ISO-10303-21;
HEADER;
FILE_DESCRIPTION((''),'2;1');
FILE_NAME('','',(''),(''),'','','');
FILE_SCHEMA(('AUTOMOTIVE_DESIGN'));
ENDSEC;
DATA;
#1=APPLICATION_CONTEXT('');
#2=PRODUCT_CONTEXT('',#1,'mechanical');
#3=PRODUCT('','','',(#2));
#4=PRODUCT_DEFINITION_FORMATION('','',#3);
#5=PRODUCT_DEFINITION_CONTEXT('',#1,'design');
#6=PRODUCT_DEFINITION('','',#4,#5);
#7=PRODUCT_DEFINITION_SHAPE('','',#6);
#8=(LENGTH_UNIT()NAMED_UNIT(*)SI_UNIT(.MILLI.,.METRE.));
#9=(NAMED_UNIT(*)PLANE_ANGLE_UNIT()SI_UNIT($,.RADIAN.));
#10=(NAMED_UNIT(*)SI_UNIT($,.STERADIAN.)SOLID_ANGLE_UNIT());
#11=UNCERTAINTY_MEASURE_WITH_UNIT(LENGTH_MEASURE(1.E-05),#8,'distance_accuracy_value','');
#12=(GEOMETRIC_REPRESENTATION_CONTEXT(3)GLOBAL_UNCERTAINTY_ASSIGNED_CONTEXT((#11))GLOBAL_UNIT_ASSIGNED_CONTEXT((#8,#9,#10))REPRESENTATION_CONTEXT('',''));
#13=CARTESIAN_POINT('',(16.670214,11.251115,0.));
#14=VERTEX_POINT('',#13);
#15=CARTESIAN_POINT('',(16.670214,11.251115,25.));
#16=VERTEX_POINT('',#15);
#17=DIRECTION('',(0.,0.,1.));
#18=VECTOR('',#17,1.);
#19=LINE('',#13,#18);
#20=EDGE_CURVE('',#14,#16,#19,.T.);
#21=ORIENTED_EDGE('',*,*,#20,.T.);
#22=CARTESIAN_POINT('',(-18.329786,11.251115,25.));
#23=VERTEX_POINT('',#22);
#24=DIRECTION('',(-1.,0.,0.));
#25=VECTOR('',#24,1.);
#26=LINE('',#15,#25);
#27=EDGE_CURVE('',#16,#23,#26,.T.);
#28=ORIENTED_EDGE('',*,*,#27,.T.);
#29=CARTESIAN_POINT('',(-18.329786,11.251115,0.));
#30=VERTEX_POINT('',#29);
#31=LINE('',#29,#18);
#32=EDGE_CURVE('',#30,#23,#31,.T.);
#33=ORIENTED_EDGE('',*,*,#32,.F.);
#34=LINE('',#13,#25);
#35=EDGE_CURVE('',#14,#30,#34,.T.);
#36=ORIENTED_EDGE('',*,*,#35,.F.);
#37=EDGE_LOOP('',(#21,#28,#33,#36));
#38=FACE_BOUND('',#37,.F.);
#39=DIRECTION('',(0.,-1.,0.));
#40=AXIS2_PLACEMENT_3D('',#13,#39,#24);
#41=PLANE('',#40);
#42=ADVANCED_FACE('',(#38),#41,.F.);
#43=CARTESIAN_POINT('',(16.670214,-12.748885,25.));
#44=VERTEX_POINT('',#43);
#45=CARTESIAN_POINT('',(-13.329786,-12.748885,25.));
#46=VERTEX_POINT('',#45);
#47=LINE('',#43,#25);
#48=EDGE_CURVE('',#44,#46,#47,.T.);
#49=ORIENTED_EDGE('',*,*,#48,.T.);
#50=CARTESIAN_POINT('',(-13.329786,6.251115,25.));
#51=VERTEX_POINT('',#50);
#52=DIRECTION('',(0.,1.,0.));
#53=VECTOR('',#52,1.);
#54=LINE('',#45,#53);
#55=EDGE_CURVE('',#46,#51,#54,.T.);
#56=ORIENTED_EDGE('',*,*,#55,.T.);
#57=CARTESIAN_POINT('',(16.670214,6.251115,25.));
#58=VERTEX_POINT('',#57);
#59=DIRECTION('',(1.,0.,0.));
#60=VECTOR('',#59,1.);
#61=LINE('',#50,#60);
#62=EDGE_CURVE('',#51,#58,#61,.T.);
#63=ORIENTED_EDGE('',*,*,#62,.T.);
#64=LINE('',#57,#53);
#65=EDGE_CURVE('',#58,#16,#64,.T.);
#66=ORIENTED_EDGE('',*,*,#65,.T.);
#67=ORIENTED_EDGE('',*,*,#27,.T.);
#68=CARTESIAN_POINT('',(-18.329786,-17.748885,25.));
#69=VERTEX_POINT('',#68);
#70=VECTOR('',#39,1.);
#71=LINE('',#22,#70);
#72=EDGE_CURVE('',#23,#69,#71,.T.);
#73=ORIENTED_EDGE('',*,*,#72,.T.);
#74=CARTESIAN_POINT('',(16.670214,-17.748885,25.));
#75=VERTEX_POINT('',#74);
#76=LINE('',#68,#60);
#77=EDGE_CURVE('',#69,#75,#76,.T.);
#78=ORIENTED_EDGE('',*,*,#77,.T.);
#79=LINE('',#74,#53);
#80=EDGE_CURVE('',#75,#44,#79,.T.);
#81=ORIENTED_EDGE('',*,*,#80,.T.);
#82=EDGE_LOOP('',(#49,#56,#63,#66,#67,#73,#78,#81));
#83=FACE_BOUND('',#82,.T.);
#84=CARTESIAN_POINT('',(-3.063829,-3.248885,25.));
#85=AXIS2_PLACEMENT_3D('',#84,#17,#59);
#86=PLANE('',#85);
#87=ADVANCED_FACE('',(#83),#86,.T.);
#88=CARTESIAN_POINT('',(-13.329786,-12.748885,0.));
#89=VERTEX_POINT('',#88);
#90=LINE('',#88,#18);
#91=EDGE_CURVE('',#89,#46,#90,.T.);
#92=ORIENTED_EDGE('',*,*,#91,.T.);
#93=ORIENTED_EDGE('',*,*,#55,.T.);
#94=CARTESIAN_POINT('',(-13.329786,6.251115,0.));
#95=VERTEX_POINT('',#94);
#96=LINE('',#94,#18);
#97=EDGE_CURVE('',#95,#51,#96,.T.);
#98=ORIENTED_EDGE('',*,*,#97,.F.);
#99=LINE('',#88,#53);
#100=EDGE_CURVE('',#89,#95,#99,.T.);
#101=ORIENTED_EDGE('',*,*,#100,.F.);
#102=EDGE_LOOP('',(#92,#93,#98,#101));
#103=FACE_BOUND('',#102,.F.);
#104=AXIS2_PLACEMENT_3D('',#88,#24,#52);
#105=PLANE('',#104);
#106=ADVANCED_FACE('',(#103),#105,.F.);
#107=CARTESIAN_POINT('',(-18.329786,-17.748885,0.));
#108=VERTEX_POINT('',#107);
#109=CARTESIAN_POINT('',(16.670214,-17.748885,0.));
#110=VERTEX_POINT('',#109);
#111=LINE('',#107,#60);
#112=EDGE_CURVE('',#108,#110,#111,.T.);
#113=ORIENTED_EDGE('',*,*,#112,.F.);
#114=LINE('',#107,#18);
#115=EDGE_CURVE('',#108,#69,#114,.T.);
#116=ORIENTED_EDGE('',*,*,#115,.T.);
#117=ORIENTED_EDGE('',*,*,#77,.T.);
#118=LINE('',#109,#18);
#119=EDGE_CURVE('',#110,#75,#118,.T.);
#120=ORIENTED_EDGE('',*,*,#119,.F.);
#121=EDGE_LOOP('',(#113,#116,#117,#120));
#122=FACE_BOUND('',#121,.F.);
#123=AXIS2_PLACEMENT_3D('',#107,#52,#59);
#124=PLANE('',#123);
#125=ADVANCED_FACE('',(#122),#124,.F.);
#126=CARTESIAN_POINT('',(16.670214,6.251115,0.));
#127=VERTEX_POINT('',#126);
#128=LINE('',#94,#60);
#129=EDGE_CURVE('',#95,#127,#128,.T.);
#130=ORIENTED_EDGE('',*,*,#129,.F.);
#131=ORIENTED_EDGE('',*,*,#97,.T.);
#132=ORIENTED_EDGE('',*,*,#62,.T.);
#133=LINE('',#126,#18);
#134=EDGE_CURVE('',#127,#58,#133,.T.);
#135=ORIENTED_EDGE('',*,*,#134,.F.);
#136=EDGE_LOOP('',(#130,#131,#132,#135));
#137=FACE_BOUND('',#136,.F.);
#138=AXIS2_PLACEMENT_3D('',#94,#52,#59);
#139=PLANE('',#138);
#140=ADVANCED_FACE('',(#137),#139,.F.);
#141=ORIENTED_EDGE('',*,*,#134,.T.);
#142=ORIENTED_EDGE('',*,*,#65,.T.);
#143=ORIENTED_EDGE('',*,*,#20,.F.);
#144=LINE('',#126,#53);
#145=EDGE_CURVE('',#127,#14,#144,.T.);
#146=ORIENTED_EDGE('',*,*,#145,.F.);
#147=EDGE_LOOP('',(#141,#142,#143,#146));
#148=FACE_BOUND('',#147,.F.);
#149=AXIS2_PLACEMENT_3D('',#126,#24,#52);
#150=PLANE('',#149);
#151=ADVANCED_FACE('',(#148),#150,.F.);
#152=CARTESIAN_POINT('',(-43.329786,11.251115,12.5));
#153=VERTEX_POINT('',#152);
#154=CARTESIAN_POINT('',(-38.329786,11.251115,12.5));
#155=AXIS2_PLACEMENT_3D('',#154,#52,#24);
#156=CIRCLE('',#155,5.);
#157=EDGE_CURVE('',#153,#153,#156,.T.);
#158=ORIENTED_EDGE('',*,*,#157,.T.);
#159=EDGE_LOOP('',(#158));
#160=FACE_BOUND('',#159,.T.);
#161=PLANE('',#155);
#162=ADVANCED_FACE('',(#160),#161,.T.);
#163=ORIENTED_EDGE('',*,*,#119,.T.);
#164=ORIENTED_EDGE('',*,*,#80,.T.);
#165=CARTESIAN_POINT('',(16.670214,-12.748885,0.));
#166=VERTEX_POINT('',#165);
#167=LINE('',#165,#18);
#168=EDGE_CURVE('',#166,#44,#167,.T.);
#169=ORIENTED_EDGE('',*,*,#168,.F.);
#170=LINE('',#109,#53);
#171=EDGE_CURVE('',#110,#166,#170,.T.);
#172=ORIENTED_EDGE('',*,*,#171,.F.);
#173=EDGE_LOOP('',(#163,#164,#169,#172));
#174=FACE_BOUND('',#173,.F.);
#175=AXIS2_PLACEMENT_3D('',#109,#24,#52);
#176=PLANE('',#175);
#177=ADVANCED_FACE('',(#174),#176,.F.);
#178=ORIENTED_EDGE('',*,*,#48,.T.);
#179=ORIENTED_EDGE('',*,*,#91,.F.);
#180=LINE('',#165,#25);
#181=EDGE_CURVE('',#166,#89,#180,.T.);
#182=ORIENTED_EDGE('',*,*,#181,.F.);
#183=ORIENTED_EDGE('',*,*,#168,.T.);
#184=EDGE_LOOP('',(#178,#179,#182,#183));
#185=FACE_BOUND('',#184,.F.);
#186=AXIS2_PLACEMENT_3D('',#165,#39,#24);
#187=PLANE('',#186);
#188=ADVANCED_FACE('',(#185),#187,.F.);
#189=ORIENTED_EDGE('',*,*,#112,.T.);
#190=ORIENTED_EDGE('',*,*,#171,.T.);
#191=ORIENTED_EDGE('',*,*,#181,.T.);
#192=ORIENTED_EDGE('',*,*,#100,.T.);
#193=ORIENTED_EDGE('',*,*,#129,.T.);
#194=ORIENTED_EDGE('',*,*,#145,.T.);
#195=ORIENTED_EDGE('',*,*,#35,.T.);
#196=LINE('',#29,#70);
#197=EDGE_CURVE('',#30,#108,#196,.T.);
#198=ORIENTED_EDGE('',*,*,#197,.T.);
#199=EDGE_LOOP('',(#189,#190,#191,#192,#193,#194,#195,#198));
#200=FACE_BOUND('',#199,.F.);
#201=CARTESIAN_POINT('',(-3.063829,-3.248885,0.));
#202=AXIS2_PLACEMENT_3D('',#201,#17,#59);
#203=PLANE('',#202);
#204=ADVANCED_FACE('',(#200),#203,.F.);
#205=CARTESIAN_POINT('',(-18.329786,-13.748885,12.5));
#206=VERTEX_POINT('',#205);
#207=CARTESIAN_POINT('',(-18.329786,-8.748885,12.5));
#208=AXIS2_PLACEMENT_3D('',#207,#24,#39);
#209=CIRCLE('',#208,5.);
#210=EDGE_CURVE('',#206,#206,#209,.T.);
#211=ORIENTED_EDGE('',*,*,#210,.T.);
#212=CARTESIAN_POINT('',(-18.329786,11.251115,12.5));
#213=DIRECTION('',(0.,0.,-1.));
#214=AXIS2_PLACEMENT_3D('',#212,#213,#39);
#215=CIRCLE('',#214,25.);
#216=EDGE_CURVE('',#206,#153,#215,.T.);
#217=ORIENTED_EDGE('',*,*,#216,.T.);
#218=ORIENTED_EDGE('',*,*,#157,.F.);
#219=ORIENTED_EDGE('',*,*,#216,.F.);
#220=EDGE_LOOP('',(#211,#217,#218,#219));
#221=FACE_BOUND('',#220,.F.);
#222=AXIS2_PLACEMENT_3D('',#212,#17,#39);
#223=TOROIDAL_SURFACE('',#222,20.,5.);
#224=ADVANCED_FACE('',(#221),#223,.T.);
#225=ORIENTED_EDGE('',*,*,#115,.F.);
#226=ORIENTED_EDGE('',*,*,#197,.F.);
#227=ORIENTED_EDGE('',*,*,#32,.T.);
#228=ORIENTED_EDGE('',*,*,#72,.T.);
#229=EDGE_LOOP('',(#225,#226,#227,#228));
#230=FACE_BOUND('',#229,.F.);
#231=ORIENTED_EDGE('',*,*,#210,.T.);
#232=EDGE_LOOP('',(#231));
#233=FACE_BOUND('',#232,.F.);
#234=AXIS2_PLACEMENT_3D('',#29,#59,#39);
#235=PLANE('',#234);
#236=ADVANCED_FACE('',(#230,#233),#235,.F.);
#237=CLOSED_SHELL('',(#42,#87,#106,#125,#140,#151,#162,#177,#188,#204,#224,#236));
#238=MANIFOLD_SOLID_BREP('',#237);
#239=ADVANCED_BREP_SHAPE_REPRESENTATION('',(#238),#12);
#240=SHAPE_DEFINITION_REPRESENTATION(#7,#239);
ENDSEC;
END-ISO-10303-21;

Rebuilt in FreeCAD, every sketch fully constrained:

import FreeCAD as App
import Part
import Sketcher
Q = App.Units.Quantity


def add_polygon(sketch, points):
    """Adds a closed chain of lines whose ends are joined by coincident constraints."""
    first, n = sketch.GeometryCount, len(points)
    for a, b in zip(points, points[1:] + points[:1]):
        sketch.addGeometry(Part.LineSegment(App.Vector(*a, 0), App.Vector(*b, 0)), False)
    for i in range(n):
        sketch.addConstraint(Sketcher.Constraint("Coincident", first + i, 2, first + (i + 1) % n, 1))

doc = App.newDocument("Part")
body = doc.addObject("PartDesign::Body", "Body")

# Sketch on XY plane
sketch1 = doc.addObject("Sketcher::SketchObject", "Sketch")
body.addObject(sketch1)
sketch1.AttachmentSupport = (doc.XY_Plane, [""])
sketch1.MapMode = "FlatFace"
add_polygon(sketch1, [(17, 11), (-18, 11), (-18, -18), (17, -18), (17, -13), (-13, -13), (-13, 6), (17, 6)])  # lines 0-7
sketch1.addConstraint(Sketcher.Constraint("Horizontal", 0))
sketch1.addConstraint(Sketcher.Constraint("Vertical", 1))
sketch1.addConstraint(Sketcher.Constraint("Horizontal", 2))
sketch1.addConstraint(Sketcher.Constraint("Vertical", 3))
sketch1.addConstraint(Sketcher.Constraint("Horizontal", 4))
sketch1.addConstraint(Sketcher.Constraint("Vertical", 5))
sketch1.addConstraint(Sketcher.Constraint("Horizontal", 6))
sketch1.addConstraint(Sketcher.Constraint("Vertical", 7))
sketch1.addConstraint(Sketcher.Constraint("Vertical", 3, 2, 6, 2))
sketch1.addConstraint(Sketcher.Constraint("Equal", 3, 7))
sketch1.addConstraint(Sketcher.Constraint("DistanceX", 0, 2, 0, 1, Q("35 mm")))
sketch1.addConstraint(Sketcher.Constraint("DistanceX", 4, 2, 4, 1, Q("30 mm")))
sketch1.addConstraint(Sketcher.Constraint("DistanceY", 1, 2, 1, 1, Q("29 mm")))
sketch1.addConstraint(Sketcher.Constraint("DistanceY", 3, 1, 3, 2, Q("5 mm")))
sketch1.addConstraint(Sketcher.Constraint("DistanceX", 0, 2, -1, 1, Q("18.329786 mm")))
sketch1.addConstraint(Sketcher.Constraint("DistanceY", -1, 1, 0, 2, Q("11.251115 mm")))
pad1 = doc.addObject("PartDesign::Pad", "Pad")
body.addObject(pad1)
pad1.Profile = sketch1
pad1.Length = 25

# Sketch on YZ plane
sketch2 = doc.addObject("Sketcher::SketchObject", "Sketch001")
body.addObject(sketch2)
sketch2.AttachmentSupport = (doc.YZ_Plane, [""])
sketch2.MapMode = "FlatFace"
sketch2.AttachmentOffset = App.Placement(App.Vector(0, 0, -18.329786), App.Rotation())
sketch2.addGeometry(Part.Circle(App.Vector(-9, 12, 0), App.Vector(0, 0, 1), 5), False)
sketch2.addGeometry(Part.LineSegment(App.Vector(11, 12, 0), App.Vector(11, 22, 0)), True)  # axis
sketch2.addConstraint(Sketcher.Constraint("Vertical", 1))
sketch2.addConstraint(Sketcher.Constraint("Horizontal", 0, 3, 1, 1))
sketch2.addConstraint(Sketcher.Constraint("Diameter", 0, Q("10 mm")))
sketch2.addConstraint(Sketcher.Constraint("DistanceY", 1, 1, 1, 2, Q("10 mm")))
sketch2.addConstraint(Sketcher.Constraint("DistanceX", 0, 3, 1, 1, Q("20 mm")))
sketch2.addConstraint(Sketcher.Constraint("DistanceY", -1, 1, 0, 3, Q("12.5 mm")))
sketch2.addConstraint(Sketcher.Constraint("DistanceX", 0, 3, -1, 1, Q("8.748885 mm")))
revolution = doc.addObject("PartDesign::Revolution", "Revolution")
body.addObject(revolution)
revolution.Profile = sketch2
revolution.ReferenceAxis = (sketch2, ["Axis0"])
revolution.Angle = 90
revolution.Reversed = True

doc.recompute()
